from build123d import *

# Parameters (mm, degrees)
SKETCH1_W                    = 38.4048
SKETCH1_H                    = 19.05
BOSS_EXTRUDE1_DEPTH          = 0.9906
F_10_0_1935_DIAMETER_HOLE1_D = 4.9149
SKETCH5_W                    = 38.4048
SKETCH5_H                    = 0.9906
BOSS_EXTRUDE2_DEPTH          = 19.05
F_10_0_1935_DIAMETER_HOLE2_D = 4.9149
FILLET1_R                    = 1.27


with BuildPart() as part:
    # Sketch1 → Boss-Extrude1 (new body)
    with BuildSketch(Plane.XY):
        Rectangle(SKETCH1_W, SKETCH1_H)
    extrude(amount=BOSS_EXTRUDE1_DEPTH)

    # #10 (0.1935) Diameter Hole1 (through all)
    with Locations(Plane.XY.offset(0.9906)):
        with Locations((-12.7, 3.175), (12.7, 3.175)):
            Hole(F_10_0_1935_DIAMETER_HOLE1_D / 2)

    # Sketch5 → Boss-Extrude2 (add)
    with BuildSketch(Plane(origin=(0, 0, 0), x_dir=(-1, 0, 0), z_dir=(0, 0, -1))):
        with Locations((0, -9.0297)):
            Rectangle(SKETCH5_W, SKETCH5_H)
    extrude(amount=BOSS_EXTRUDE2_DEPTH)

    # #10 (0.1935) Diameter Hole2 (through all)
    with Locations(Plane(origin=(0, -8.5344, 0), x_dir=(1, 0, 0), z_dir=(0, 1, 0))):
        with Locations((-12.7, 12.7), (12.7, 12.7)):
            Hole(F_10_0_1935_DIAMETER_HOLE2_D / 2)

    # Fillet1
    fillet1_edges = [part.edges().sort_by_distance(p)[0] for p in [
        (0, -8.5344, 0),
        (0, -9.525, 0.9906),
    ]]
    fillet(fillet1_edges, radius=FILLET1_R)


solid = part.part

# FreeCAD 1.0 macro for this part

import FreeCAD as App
import Part
import Sketcher
from FreeCAD import Vector
Q = App.Units.Quantity


def edges_at(feature, points):
    """Names of the edges that pass closest to the given points."""
    edges = feature.Shape.Edges
    near = lambda p: min(range(len(edges)), key=lambda i: edges[i].distToShape(Part.Vertex(*p))[0])
    return sorted({f"Edge{near(p) + 1}" for p in points})

doc = App.newDocument("Part")
params = doc.addObject("Spreadsheet::Sheet", "Params")
for row, (alias, value) in enumerate([
    ("sketch1_height", "0.75 in"),
    ("sketch1_width", "1.512 in"),
    ("pad1_length", "0.039 in"),
    ("hole_diameter", "0.1935 in"),
    ("sketch3_width", "1.512 in"),
    ("sketch3_height", "0.039 in"),
    ("pad2_length", "0.75 in"),
    ("hole2_diameter", "0.1935 in"),
    ("fillet_radius", "0.05 in"),
], start=1):
    params.set(f"A{row}", alias)
    params.set(f"B{row}", "=" + value)
    params.setAlias(f"B{row}", alias)

body = doc.addObject("PartDesign::Body", "Body")

# Sketch on XY plane
sketch1 = body.newObject("Sketcher::SketchObject", "Sketch")
sketch1.AttachmentSupport = (doc.getObject("XY_Plane"), [""])
sketch1.MapMode = "FlatFace"
sketch1.addGeometry(Part.LineSegment(Vector(-19, 10, 0), Vector(-19, -10, 0)), False)
sketch1.addGeometry(Part.LineSegment(Vector(-19, -10, 0), Vector(19, -10, 0)), False)
sketch1.addGeometry(Part.LineSegment(Vector(19, -10, 0), Vector(19, 10, 0)), False)
sketch1.addGeometry(Part.LineSegment(Vector(19, 10, 0), Vector(-19, 10, 0)), False)
sketch1.addConstraint(Sketcher.Constraint("Coincident", 0, 2, 1, 1))
sketch1.addConstraint(Sketcher.Constraint("Coincident", 1, 2, 2, 1))
sketch1.addConstraint(Sketcher.Constraint("Coincident", 2, 2, 3, 1))
sketch1.addConstraint(Sketcher.Constraint("Coincident", 3, 2, 0, 1))
sketch1.addConstraint(Sketcher.Constraint("Vertical", 0))
sketch1.addConstraint(Sketcher.Constraint("Horizontal", 1))
sketch1.addConstraint(Sketcher.Constraint("Vertical", 2))
sketch1.addConstraint(Sketcher.Constraint("Horizontal", 3))
sketch1.addConstraint(Sketcher.Constraint("Symmetric", 0, 2, 2, 2, -1, 1))
sketch1.addConstraint(Sketcher.Constraint("DistanceY", 0, 2, 0, 1, Q("0.75 in")))
sketch1.addConstraint(Sketcher.Constraint("DistanceX", 1, 1, 1, 2, Q("1.512 in")))
sketch1.setExpression("Constraints[9]", "Params.sketch1_height")
sketch1.setExpression("Constraints[10]", "Params.sketch1_width")
pad1 = body.newObject("PartDesign::Pad", "Pad")
pad1.Profile = sketch1
pad1.setExpression("Length", "Params.pad1_length")

# Sketch on XY plane
sketch2 = body.newObject("Sketcher::SketchObject", "Sketch001")
sketch2.AttachmentSupport = (doc.getObject("XY_Plane"), [""])
sketch2.MapMode = "FlatFace"
sketch2.AttachmentOffset = App.Placement(Vector(0, 0, 0.039 * 25.4), App.Rotation())
sketch2.addGeometry(Part.Circle(Vector(-12.7, 3.2, 0), Vector(0, 0, 1), 2.5), False)
sketch2.addGeometry(Part.Circle(Vector(12.7, 3.2, 0), Vector(0, 0, 1), 2.5), False)
sketch2.addConstraint(Sketcher.Constraint("Equal", 0, 1))
sketch2.addConstraint(Sketcher.Constraint("Symmetric", 0, 3, 1, 3, -2))
sketch2.addConstraint(Sketcher.Constraint("DistanceX", 0, 3, 1, 3, Q("1 in")))
sketch2.addConstraint(Sketcher.Constraint("Diameter", 0, Q("0.1935 in")))
sketch2.addConstraint(Sketcher.Constraint("DistanceY", -1, 1, 0, 3, Q("0.125 in")))
doc.recompute()
hole = body.newObject("PartDesign::Hole", "Hole")
hole.Profile = sketch2
hole.ThreadType = "None"
hole.setExpression("Diameter", "Params.hole_diameter")
hole.DepthType = "ThroughAll"

# Sketch on XY plane
sketch3 = body.newObject("Sketcher::SketchObject", "Sketch002")
sketch3.AttachmentSupport = (doc.getObject("XY_Plane"), [""])
sketch3.MapMode = "FlatFace"
sketch3.addGeometry(Part.LineSegment(Vector(19.2, -8.5, 0), Vector(19.2, -9.5, 0)), False)
sketch3.addGeometry(Part.LineSegment(Vector(19.2, -9.5, 0), Vector(-19.2, -9.5, 0)), False)
sketch3.addGeometry(Part.LineSegment(Vector(-19.2, -9.5, 0), Vector(-19.2, -8.5, 0)), False)
sketch3.addGeometry(Part.LineSegment(Vector(-19.2, -8.5, 0), Vector(19.2, -8.5, 0)), False)
sketch3.addConstraint(Sketcher.Constraint("Coincident", 0, 2, 1, 1))
sketch3.addConstraint(Sketcher.Constraint("Coincident", 1, 2, 2, 1))
sketch3.addConstraint(Sketcher.Constraint("Coincident", 2, 2, 3, 1))
sketch3.addConstraint(Sketcher.Constraint("Coincident", 3, 2, 0, 1))
sketch3.addConstraint(Sketcher.Constraint("Vertical", 0))
sketch3.addConstraint(Sketcher.Constraint("Horizontal", 1))
sketch3.addConstraint(Sketcher.Constraint("Vertical", 2))
sketch3.addConstraint(Sketcher.Constraint("Horizontal", 3))
sketch3.addConstraint(Sketcher.Constraint("DistanceX", 1, 2, 1, 1, Q("1.512 in")))
sketch3.addConstraint(Sketcher.Constraint("DistanceY", 0, 2, 0, 1, Q("0.039 in")))
sketch3.addConstraint(Sketcher.Constraint("DistanceX", -1, 1, 0, 2, Q("0.756 in")))
sketch3.addConstraint(Sketcher.Constraint("DistanceY", 0, 2, -1, 1, Q("0.375 in")))
sketch3.setExpression("Constraints[8]", "Params.sketch3_width")
sketch3.setExpression("Constraints[9]", "Params.sketch3_height")
pad2 = body.newObject("PartDesign::Pad", "Pad001")
pad2.Profile = sketch3
pad2.setExpression("Length", "Params.pad2_length")
pad2.Reversed = True

# Sketch on XZ plane
sketch4 = body.newObject("Sketcher::SketchObject", "Sketch003")
sketch4.AttachmentSupport = (doc.getObject("XZ_Plane"), [""])
sketch4.MapMode = "FlatFace"
sketch4.AttachmentOffset = App.Placement(Vector(0, 0, 0.336 * 25.4), App.Rotation())
sketch4.addGeometry(Part.Circle(Vector(-12.7, -12.7, 0), Vector(0, 0, 1), 2.5), False)
sketch4.addGeometry(Part.Circle(Vector(12.7, -12.7, 0), Vector(0, 0, 1), 2.5), False)
sketch4.addConstraint(Sketcher.Constraint("Equal", 0, 1))
sketch4.addConstraint(Sketcher.Constraint("Symmetric", 0, 3, 1, 3, -2))
sketch4.addConstraint(Sketcher.Constraint("DistanceX", 0, 3, 1, 3, Q("1 in")))
sketch4.addConstraint(Sketcher.Constraint("Diameter", 0, Q("0.1935 in")))
sketch4.addConstraint(Sketcher.Constraint("DistanceY", 0, 3, -1, 1, Q("0.5 in")))
doc.recompute()
hole2 = body.newObject("PartDesign::Hole", "Hole001")
hole2.Profile = sketch4
hole2.ThreadType = "None"
hole2.setExpression("Diameter", "Params.hole2_diameter")
hole2.DepthType = "ThroughAll"
hole2.Reversed = True
doc.recompute()

fillet = body.newObject("PartDesign::Fillet", "Fillet")
fillet.Base = (hole2, edges_at(hole2, [(0, -8.534, 0), (0, -9.525, 0.991)]))
fillet.setExpression("Radius", "Params.fillet_radius")

doc.recompute()
